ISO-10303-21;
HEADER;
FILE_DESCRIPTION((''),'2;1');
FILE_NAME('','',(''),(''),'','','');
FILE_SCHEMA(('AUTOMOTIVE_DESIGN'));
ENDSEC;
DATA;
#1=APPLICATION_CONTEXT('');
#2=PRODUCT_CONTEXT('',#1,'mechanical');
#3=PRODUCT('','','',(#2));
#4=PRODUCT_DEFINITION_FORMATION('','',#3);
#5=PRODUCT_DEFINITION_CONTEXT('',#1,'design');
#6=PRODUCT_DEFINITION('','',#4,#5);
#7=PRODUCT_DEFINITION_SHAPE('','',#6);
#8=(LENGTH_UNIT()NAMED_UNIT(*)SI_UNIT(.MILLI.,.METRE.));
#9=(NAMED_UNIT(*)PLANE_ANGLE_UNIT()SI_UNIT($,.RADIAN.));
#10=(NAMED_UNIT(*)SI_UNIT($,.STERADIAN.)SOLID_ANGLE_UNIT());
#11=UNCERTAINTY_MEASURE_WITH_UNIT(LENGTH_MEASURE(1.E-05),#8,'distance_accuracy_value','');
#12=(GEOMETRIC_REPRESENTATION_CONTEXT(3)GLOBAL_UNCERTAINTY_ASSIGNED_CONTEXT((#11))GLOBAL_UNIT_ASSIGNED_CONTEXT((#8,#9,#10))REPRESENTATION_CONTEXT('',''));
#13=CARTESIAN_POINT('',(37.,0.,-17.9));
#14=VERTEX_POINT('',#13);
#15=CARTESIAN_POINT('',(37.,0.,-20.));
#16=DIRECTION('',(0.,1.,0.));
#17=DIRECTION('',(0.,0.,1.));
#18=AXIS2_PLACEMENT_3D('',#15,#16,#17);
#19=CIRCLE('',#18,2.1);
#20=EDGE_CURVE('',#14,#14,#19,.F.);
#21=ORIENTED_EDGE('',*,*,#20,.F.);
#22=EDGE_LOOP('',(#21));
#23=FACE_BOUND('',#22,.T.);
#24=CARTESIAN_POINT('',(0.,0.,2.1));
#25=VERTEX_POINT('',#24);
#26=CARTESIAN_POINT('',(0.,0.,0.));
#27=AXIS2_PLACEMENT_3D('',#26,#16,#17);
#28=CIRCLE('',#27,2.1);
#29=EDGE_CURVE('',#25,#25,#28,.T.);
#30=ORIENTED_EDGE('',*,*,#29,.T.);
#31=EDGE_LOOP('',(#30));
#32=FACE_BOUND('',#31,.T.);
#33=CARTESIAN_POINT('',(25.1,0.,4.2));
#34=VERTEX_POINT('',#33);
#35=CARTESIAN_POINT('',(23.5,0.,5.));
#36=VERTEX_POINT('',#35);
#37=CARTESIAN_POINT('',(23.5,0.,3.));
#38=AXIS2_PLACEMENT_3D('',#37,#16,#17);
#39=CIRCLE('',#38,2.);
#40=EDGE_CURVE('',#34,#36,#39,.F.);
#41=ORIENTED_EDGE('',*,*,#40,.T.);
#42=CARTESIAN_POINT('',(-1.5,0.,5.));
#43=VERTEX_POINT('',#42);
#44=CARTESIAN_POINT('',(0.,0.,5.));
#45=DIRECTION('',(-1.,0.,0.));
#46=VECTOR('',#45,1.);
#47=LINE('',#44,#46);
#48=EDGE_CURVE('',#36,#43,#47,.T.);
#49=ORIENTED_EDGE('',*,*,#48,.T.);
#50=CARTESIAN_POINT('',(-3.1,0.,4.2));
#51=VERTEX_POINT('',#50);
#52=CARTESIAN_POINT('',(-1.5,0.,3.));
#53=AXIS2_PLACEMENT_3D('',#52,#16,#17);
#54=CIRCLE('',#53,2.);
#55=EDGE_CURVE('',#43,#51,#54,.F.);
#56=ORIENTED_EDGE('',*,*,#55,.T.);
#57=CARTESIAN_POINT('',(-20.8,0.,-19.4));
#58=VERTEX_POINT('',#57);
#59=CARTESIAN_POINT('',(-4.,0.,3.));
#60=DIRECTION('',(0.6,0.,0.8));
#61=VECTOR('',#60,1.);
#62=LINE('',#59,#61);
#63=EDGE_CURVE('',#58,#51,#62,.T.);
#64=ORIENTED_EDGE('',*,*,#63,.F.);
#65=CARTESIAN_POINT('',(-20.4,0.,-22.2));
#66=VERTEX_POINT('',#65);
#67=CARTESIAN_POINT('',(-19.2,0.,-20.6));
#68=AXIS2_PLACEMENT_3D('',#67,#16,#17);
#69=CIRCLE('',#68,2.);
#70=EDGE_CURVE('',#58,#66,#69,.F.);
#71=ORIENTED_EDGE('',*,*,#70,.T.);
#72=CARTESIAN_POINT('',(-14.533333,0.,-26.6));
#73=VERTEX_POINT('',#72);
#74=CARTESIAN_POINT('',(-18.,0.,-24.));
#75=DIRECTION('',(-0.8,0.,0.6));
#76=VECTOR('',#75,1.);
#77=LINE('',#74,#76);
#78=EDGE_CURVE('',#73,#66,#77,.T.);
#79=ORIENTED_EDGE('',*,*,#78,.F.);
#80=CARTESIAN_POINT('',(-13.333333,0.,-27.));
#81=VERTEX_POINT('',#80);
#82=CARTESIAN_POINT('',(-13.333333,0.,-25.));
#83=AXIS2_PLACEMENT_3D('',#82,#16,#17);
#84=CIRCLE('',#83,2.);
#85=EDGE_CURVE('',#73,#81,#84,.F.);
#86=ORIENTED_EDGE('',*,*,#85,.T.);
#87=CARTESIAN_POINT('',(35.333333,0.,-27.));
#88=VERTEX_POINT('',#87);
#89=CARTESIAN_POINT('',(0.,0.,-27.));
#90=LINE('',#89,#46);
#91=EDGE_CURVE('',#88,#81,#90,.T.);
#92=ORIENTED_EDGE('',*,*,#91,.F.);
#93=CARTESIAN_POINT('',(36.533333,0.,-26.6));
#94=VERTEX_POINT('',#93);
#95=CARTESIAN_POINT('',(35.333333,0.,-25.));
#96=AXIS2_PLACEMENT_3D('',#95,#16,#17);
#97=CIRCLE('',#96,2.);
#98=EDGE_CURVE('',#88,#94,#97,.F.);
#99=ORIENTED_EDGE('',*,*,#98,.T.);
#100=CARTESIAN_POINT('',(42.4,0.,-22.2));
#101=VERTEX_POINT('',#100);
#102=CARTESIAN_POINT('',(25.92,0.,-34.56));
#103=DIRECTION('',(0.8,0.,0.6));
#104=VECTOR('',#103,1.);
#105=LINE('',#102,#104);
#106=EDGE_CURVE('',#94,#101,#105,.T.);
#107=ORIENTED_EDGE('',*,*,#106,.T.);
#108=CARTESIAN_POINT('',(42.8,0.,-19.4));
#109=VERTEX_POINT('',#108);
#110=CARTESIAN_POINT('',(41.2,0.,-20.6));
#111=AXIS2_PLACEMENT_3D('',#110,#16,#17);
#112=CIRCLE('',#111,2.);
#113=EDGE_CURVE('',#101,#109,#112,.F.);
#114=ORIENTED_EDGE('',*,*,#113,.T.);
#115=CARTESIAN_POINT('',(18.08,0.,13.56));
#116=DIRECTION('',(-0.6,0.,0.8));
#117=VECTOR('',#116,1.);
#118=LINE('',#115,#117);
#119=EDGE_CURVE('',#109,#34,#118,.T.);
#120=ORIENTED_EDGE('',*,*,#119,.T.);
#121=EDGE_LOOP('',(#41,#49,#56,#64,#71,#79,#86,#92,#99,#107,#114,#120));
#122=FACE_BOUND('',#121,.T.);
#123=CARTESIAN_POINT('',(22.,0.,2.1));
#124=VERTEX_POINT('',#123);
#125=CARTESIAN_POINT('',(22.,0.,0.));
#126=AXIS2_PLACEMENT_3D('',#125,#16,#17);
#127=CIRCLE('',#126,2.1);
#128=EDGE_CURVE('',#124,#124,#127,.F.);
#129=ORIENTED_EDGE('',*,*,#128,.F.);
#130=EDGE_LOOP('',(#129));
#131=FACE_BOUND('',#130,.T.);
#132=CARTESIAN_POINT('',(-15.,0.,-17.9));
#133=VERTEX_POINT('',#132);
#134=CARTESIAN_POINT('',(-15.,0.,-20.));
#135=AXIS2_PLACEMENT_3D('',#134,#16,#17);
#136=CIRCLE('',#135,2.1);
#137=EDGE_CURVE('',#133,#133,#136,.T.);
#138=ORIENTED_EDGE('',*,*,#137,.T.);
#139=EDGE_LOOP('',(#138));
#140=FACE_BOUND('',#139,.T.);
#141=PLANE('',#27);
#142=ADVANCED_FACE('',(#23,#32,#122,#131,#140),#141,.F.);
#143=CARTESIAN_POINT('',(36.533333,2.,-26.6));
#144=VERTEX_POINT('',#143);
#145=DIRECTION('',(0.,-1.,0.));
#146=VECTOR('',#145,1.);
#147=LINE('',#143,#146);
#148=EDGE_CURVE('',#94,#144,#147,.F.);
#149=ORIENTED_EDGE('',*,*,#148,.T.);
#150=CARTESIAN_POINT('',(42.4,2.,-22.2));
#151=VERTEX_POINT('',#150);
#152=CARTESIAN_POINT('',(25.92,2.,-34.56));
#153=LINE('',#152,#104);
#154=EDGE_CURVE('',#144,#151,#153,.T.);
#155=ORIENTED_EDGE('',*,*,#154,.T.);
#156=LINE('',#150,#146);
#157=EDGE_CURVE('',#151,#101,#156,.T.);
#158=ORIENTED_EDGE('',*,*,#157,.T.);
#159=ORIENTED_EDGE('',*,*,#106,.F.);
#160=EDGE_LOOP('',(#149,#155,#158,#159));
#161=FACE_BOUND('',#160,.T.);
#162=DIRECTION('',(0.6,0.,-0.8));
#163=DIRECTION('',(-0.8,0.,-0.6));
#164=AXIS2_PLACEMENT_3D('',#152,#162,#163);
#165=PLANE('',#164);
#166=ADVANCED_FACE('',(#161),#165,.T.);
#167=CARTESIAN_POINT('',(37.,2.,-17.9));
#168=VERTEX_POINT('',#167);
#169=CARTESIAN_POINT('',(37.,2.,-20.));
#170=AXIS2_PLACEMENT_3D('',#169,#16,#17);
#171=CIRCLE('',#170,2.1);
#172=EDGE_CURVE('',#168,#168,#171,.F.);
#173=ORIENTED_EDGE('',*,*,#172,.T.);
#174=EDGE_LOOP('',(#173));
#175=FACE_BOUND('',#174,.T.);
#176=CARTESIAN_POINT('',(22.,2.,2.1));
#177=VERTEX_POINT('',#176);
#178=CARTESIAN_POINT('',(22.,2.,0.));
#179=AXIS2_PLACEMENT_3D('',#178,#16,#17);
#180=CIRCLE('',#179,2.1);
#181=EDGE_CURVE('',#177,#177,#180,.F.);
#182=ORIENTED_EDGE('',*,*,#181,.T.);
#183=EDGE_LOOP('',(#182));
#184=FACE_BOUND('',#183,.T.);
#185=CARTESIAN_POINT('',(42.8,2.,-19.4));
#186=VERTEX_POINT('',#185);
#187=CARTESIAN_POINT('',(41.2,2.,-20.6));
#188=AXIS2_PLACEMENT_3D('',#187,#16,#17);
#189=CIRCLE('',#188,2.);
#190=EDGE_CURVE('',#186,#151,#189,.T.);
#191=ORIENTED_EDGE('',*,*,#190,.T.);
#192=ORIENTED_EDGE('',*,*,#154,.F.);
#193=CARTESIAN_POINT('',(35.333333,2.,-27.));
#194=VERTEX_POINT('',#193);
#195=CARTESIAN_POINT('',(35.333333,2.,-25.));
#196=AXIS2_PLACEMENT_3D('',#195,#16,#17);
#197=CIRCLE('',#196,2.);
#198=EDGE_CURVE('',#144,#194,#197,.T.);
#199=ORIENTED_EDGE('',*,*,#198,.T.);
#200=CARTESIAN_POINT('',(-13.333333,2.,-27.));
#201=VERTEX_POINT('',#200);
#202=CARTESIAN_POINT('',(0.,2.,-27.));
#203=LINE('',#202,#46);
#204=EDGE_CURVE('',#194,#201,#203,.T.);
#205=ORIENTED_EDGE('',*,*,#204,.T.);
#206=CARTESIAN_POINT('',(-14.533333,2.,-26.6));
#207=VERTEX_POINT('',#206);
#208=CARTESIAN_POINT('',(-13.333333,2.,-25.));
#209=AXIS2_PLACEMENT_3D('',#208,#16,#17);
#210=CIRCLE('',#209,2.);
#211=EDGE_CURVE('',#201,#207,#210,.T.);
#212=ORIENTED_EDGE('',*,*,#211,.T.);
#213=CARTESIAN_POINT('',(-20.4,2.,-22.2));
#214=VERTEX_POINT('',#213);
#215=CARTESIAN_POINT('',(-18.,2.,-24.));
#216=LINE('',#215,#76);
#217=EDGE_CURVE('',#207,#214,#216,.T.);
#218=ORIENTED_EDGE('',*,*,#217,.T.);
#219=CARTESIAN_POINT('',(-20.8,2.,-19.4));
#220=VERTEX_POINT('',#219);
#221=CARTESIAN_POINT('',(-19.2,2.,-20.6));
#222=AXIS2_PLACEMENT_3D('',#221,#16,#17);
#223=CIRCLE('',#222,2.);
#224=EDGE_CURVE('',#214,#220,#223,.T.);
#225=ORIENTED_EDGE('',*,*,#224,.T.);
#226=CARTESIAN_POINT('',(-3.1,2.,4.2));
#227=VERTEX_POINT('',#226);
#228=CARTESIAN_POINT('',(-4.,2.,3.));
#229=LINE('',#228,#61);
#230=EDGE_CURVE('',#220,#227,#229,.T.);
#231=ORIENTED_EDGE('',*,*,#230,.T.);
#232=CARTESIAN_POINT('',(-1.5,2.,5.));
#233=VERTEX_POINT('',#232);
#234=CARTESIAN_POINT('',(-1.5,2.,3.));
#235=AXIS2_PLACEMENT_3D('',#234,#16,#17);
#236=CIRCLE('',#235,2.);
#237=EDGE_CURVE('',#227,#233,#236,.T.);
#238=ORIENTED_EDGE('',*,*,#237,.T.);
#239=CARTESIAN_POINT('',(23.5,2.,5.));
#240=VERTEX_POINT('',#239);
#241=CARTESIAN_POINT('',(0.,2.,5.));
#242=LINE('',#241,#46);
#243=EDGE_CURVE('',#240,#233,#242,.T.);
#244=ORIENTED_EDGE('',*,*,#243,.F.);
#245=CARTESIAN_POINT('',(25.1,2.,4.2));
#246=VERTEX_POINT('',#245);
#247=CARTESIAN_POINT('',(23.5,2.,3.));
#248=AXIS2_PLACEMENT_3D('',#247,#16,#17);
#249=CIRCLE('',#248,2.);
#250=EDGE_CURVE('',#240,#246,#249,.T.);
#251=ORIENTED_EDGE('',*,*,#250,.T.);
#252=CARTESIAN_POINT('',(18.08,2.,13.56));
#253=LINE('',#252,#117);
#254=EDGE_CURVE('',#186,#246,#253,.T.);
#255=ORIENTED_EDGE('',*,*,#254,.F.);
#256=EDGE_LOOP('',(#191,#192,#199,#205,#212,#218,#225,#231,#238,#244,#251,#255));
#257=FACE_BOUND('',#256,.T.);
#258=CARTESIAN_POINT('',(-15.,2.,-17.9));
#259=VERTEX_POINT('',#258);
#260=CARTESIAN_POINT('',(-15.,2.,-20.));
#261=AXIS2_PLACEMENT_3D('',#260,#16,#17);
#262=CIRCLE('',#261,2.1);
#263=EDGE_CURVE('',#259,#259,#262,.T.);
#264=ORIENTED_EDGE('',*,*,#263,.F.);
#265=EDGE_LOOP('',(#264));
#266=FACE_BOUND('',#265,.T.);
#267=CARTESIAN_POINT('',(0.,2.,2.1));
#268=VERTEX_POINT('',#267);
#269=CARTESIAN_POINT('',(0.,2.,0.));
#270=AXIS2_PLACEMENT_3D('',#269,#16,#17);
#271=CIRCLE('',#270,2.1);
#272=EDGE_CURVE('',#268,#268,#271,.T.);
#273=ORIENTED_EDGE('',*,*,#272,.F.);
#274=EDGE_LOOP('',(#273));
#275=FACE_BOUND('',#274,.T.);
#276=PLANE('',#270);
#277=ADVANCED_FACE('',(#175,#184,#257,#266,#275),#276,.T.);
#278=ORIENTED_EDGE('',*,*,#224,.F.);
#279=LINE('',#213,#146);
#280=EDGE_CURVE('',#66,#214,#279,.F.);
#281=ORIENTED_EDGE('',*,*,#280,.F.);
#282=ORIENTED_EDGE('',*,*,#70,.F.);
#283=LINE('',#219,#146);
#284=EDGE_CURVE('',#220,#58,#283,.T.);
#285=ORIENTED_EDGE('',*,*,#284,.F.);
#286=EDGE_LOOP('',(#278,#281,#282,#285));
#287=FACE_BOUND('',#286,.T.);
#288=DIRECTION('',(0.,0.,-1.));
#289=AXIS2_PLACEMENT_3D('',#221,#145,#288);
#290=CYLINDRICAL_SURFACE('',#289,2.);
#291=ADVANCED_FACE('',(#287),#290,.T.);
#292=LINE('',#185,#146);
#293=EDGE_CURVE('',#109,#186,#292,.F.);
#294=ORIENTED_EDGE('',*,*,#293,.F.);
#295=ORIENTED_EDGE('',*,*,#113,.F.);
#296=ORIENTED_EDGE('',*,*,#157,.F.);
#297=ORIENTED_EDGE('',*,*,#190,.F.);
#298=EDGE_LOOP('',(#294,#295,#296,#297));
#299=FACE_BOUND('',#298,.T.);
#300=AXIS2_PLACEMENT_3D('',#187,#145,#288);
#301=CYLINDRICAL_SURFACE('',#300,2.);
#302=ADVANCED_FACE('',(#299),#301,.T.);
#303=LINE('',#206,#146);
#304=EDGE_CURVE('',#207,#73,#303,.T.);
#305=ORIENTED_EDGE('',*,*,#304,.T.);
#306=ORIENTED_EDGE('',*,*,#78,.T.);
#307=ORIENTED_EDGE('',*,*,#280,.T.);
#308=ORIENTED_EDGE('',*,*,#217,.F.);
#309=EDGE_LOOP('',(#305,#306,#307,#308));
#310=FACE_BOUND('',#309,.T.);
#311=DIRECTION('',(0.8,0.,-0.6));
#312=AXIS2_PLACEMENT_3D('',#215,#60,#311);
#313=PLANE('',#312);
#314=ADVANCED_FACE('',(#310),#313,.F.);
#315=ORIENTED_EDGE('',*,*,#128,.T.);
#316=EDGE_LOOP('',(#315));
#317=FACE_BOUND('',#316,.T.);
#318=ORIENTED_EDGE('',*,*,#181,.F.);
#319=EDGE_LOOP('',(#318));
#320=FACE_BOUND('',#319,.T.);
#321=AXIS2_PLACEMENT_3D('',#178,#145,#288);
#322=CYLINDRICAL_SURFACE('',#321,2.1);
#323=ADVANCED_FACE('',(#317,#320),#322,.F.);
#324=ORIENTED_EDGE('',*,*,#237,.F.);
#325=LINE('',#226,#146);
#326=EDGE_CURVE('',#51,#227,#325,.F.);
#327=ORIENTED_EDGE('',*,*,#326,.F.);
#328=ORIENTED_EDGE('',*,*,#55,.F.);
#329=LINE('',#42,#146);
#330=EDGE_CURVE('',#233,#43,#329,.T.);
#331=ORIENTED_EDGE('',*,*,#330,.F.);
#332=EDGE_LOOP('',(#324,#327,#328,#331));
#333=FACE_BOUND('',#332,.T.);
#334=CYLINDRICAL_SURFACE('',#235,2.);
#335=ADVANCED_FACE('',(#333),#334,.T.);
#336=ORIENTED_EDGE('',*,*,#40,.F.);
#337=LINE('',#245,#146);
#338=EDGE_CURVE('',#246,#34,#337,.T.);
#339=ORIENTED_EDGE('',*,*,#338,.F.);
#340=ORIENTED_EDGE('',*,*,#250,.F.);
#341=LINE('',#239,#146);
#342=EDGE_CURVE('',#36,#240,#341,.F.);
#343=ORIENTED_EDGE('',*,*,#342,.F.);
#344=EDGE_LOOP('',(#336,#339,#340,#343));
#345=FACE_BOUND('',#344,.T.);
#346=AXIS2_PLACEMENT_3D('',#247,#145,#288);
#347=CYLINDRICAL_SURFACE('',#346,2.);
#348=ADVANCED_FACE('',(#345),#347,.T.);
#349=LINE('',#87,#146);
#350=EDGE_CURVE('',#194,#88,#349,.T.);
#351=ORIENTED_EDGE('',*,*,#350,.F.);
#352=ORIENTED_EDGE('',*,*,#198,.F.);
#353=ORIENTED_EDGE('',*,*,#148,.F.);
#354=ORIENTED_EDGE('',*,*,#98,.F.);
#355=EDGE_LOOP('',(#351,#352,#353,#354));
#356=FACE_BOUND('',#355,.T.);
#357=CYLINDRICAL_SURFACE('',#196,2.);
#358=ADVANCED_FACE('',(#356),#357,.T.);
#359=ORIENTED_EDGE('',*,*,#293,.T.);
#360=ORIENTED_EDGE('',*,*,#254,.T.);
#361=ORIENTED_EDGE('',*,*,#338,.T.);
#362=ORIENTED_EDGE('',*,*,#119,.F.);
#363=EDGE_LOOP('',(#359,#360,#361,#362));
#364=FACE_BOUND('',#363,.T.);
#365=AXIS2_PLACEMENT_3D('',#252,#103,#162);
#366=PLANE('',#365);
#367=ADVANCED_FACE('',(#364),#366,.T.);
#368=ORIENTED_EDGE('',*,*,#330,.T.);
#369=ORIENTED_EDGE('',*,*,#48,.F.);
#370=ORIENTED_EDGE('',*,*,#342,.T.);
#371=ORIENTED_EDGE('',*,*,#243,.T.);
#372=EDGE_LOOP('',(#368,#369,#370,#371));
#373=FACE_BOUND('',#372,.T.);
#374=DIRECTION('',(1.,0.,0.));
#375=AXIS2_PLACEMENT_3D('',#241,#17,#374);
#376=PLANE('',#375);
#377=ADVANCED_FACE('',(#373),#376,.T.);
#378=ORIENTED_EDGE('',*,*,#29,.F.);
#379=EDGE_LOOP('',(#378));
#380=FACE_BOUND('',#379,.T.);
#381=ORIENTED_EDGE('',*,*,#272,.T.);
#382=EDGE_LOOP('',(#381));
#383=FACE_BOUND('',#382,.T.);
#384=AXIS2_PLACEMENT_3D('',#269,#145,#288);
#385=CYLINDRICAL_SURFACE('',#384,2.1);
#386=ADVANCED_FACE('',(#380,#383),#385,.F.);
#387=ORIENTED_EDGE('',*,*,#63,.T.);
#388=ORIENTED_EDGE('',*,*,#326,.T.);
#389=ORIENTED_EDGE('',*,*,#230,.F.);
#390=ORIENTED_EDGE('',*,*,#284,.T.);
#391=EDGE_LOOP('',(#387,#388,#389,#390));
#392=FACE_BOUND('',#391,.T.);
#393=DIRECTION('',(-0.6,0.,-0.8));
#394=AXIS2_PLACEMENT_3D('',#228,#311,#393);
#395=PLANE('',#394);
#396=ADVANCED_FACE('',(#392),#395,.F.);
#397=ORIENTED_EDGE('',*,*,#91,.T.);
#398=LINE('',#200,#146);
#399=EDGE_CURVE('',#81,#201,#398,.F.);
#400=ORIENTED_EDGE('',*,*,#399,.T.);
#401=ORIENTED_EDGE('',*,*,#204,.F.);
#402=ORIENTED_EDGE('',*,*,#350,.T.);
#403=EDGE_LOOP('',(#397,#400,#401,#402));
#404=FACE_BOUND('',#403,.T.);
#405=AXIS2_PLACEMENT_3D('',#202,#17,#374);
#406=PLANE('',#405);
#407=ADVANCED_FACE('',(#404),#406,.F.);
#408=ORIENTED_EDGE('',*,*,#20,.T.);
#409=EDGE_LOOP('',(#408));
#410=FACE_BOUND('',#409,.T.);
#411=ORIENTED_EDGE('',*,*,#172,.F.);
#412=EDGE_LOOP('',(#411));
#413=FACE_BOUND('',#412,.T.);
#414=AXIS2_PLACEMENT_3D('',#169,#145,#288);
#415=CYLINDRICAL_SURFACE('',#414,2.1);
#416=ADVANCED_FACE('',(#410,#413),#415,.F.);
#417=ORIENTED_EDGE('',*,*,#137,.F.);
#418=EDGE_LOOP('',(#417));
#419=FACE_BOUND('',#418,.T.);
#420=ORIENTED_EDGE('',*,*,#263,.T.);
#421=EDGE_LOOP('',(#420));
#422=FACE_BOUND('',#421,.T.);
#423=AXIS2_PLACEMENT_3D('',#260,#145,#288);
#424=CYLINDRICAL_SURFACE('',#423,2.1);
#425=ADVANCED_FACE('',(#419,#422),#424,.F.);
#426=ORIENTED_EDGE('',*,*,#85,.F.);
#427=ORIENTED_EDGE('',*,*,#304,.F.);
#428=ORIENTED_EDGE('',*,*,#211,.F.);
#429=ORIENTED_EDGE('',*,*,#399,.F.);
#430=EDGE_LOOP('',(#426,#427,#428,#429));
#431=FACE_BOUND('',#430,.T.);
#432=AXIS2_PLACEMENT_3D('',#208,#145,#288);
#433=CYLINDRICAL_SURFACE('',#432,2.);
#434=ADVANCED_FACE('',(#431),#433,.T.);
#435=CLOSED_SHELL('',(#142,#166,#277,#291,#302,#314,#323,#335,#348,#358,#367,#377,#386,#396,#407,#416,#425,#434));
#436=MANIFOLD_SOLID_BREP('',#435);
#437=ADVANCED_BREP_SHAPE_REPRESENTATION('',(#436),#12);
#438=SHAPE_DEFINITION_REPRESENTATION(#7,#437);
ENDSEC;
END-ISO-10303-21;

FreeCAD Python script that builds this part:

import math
import FreeCAD as App
import Part
import Sketcher


def edges_at(feature, points):
    """Names of the edges that pass closest to the given points."""
    edges = feature.Shape.Edges
    near = lambda p: min(range(len(edges)), key=lambda i: edges[i].distToShape(Part.Vertex(*p))[0])
    return sorted({f"Edge{near(p) + 1}" for p in points})

doc = App.newDocument("Part")
body = doc.addObject("PartDesign::Body", "Body")

# Sketch on XZ plane
sketch1 = doc.addObject("Sketcher::SketchObject", "Sketch")
body.addObject(sketch1)
sketch1.AttachmentSupport = (doc.XZ_Plane, [""])
sketch1.MapMode = "FlatFace"
sketch1.addGeometry([
    Part.LineSegment(App.Vector(36, -27, 0), App.Vector(-14, -27, 0)),  # 0
    Part.LineSegment(App.Vector(-14, -27, 0), App.Vector(-22, -21, 0)),  # 1
    Part.LineSegment(App.Vector(-22, -21, 0), App.Vector(-2.5, 5, 0)),  # 2
    Part.LineSegment(App.Vector(-2.5, 5, 0), App.Vector(24.5, 5, 0)),  # 3
    Part.LineSegment(App.Vector(24.5, 5, 0), App.Vector(44, -21, 0)),  # 4
    Part.LineSegment(App.Vector(44, -21, 0), App.Vector(36, -27, 0)),  # 5
    Part.Circle(App.Vector(0, 0, 0), App.Vector(0, 0, 1), 2.1),  # 6
    Part.ArcOfCircle(Part.Circle(App.Vector(22, 0, 0), App.Vector(0, 0, 1), 2.1), math.radians(-162.24721), math.radians(162.24721)),  # 7
    Part.ArcOfCircle(Part.Circle(App.Vector(22, 0, 0), App.Vector(0, 0, 1), 2.1), math.radians(162.24721), math.radians(197.75279)),  # 8
    Part.Circle(App.Vector(-15, -20, 0), App.Vector(0, 0, 1), 2.1),  # 9
    Part.Circle(App.Vector(37, -20, 0), App.Vector(0, 0, 1), 2.1),  # 10
], False)
sketch1.addConstraint([
    Sketcher.Constraint("Coincident", 0, 2, 1, 1),
    Sketcher.Constraint("Coincident", 1, 2, 2, 1),
    Sketcher.Constraint("Coincident", 2, 2, 3, 1),
    Sketcher.Constraint("Coincident", 3, 2, 4, 1),
    Sketcher.Constraint("Coincident", 4, 2, 5, 1),
    Sketcher.Constraint("Coincident", 5, 2, 0, 1),
    Sketcher.Constraint("Tangent", 7, 1, 8, 2),
    Sketcher.Constraint("Coincident", 8, 1, 7, 2),
    Sketcher.Constraint("Horizontal", 0),
    Sketcher.Constraint("Horizontal", 3),
    Sketcher.Constraint("Coincident", 6, 3, -1, 1),
    Sketcher.Constraint("Equal", 6, 7),
    Sketcher.Constraint("Equal", 8, 9),
    Sketcher.Constraint("Equal", 9, 10),
    Sketcher.Constraint("Symmetric", 7, 1, 8, 1, -1),
    Sketcher.Constraint("Perpendicular", 1, 2),
    Sketcher.Constraint("Perpendicular", 4, 5),
    Sketcher.Constraint("Horizontal", 9, 3, 10, 3),
    Sketcher.Constraint("Horizontal", 1, 2, 4, 2),
    Sketcher.Constraint("Equal", 2, 4),
    Sketcher.Constraint("Diameter", 6, 4.2),
    Sketcher.Constraint("DistanceX", 0, 2, 0, 1, 50.0),
    Sketcher.Constraint("DistanceX", 3, 1, 3, 2, 27.0),
    Sketcher.Constraint("Distance", 1, 10.0),
    Sketcher.Constraint("DistanceX", -1, 1, 7, 3, 22.0),
    Sketcher.Constraint("DistanceX", 9, 3, -1, 1, 15.0),
    Sketcher.Constraint("DistanceY", 9, 3, -1, 1, 20.0),
    Sketcher.Constraint("DistanceX", -1, 1, 10, 3, 37.0),
    Sketcher.Constraint("DistanceX", 0, 2, -1, 1, 14.0),
    Sketcher.Constraint("DistanceY", 0, 2, -1, 1, 27.0),
    Sketcher.Constraint("DistanceX", 1, 2, -1, 1, 22.0),
    Sketcher.Constraint("DistanceX", -1, 1, 7, 1, 20.0),
])
pad1 = doc.addObject("PartDesign::Pad", "Pad")
body.addObject(pad1)
pad1.Profile = sketch1
pad1.Length = 2
pad1.Reversed = True
doc.recompute()

fillet = doc.addObject("PartDesign::Fillet", "Fillet")
body.addObject(fillet)
fillet.Base = (pad1, edges_at(pad1, [
    (-22, 1, -21),
    (-14, 1, -27),
    (36, 1, -27),
    (44, 1, -21),
    (24.5, 1, 5),
    (-2.5, 1, 5),
]))
fillet.Radius = 2

doc.recompute()
